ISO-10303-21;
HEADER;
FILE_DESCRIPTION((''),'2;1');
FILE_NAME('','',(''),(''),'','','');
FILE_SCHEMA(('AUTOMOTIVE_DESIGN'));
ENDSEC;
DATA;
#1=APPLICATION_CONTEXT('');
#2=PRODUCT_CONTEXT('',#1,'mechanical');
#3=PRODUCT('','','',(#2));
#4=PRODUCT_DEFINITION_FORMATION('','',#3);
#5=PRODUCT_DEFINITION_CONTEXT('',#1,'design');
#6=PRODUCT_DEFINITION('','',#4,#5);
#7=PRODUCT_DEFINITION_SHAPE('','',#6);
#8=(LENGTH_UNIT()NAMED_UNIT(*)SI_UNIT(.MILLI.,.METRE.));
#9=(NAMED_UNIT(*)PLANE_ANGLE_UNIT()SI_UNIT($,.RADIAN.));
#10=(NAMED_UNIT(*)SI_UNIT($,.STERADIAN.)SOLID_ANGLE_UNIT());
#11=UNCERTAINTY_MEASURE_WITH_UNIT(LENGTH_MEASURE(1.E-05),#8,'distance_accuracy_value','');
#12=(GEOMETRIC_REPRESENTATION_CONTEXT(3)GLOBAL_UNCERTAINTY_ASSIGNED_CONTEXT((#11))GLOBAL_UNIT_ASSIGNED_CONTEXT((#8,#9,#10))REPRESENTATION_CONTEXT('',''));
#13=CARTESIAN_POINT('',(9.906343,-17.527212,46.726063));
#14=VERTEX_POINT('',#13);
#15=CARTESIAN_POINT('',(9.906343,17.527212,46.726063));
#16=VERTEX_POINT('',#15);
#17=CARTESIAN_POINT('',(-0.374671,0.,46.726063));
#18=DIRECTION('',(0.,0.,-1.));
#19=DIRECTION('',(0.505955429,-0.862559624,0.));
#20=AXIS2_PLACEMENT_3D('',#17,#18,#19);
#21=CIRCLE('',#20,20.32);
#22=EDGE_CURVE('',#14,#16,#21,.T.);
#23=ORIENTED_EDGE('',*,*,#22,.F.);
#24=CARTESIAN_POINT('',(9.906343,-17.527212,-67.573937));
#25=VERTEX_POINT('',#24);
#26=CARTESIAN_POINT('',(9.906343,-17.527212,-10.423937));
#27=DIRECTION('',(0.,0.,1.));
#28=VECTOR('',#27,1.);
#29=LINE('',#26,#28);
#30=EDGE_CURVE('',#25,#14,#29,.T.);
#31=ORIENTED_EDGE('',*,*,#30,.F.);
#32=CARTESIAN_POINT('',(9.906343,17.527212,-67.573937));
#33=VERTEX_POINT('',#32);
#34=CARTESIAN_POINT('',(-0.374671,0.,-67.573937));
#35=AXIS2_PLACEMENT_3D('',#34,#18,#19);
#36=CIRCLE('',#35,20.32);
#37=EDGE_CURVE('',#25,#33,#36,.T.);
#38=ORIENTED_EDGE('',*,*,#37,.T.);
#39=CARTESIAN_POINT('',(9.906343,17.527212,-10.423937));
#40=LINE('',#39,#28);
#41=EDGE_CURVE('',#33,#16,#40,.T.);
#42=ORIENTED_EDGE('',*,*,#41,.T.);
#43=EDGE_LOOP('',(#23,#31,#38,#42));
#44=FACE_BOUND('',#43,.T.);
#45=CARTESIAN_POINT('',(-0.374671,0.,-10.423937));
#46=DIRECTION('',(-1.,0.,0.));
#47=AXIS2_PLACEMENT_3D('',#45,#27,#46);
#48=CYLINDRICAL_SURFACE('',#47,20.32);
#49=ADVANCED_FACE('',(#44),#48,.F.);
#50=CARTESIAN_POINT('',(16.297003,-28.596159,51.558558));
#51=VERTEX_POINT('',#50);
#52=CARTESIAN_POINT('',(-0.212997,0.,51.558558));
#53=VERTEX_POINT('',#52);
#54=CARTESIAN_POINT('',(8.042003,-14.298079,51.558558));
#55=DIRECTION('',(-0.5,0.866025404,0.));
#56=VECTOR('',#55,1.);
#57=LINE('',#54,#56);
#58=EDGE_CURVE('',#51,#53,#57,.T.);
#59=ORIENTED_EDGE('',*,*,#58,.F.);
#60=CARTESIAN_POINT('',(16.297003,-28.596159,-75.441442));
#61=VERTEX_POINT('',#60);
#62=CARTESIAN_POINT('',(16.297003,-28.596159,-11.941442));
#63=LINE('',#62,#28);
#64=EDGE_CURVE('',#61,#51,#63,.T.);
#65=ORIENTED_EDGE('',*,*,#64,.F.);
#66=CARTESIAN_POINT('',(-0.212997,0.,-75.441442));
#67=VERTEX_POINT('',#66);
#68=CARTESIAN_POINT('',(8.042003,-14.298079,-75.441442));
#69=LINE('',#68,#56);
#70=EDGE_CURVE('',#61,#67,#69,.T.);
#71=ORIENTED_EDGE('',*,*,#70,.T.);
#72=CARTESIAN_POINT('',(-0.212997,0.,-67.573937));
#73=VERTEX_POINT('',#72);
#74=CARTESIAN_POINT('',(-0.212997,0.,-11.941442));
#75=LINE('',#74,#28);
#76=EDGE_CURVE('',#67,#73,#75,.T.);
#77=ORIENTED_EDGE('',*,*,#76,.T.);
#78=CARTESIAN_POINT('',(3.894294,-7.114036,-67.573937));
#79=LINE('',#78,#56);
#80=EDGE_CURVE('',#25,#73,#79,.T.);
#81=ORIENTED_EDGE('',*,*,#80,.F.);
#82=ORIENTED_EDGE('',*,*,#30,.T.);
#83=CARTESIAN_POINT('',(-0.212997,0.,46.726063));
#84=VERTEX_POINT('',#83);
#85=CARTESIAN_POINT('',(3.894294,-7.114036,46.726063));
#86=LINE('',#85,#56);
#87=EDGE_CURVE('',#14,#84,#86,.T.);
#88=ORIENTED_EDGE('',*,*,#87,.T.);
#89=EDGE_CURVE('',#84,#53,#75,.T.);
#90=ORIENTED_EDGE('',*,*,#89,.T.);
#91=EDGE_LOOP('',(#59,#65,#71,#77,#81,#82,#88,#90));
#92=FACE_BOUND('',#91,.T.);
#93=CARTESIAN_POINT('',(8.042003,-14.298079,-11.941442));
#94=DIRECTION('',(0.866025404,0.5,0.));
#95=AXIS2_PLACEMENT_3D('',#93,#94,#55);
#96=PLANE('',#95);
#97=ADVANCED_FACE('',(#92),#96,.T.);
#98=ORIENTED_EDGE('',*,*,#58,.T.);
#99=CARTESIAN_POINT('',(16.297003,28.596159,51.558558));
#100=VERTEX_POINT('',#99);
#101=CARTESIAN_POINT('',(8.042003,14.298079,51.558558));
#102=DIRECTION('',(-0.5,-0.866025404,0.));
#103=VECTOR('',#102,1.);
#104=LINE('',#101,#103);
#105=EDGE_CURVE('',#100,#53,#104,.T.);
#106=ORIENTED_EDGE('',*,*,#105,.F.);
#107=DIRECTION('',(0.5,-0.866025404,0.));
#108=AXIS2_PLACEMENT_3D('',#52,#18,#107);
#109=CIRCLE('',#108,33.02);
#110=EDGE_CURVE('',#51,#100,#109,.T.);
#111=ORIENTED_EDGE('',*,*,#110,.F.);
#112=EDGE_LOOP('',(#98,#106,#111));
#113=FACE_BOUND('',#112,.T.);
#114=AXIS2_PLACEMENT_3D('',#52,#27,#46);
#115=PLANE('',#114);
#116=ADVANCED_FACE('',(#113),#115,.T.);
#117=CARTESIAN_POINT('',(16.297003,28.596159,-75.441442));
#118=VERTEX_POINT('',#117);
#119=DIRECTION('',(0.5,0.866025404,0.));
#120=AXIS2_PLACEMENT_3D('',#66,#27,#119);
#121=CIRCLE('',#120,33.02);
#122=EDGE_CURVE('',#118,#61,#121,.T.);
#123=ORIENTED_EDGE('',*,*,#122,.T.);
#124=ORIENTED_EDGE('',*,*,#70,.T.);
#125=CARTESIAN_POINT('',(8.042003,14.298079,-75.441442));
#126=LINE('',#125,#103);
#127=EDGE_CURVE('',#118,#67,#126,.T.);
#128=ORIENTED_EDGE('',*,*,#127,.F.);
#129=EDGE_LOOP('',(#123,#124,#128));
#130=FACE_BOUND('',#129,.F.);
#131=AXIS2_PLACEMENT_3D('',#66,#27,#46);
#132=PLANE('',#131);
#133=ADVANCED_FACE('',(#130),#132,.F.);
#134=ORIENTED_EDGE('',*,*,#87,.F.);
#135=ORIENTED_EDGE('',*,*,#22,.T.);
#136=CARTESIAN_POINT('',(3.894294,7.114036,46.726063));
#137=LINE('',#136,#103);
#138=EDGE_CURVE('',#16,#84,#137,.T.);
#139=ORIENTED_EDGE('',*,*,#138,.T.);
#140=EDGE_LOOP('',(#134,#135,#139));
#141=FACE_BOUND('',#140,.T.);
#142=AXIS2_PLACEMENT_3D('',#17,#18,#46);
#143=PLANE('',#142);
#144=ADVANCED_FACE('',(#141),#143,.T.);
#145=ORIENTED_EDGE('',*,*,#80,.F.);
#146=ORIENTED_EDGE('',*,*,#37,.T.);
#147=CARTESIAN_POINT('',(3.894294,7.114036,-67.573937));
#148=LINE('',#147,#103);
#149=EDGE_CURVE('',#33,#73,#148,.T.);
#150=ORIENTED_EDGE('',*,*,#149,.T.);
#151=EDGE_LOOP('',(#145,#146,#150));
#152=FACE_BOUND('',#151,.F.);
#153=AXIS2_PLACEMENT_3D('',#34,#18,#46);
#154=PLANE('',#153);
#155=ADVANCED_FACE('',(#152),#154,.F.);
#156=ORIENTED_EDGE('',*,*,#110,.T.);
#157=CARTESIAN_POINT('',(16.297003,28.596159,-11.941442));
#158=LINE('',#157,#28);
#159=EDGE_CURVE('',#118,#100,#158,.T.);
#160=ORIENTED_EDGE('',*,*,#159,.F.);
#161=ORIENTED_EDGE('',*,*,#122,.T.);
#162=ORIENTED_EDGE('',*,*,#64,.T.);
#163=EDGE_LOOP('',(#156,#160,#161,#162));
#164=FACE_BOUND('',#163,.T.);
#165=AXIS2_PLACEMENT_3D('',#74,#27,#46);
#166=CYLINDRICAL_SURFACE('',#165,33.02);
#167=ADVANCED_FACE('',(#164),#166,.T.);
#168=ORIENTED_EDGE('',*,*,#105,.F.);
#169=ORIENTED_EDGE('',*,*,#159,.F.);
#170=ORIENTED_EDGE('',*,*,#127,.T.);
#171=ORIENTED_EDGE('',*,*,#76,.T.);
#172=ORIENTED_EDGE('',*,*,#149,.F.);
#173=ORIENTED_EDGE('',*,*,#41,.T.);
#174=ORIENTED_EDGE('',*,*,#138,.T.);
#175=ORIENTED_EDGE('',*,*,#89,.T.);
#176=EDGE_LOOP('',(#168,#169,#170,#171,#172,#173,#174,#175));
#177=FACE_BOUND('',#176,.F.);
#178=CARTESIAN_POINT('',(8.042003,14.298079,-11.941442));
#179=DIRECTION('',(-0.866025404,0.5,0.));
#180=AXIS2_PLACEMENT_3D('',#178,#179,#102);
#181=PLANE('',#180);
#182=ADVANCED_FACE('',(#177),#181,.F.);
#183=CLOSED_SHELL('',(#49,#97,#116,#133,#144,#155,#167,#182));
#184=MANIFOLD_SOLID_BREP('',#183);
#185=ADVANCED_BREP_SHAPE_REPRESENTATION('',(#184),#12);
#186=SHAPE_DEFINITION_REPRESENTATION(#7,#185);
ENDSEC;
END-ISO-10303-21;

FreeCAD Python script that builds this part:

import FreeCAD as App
import Part
import Sketcher
Q = App.Units.Quantity


def add_polygon(sketch, points):
    """Adds a closed chain of lines whose ends are joined by coincident constraints."""
    first, n = sketch.GeometryCount, len(points)
    for a, b in zip(points, points[1:] + points[:1]):
        sketch.addGeometry(Part.LineSegment(App.Vector(*a, 0), App.Vector(*b, 0)), False)
    for i in range(n):
        sketch.addConstraint(Sketcher.Constraint("Coincident", first + i, 2, first + (i + 1) % n, 1))

doc = App.newDocument("Part")
body = doc.addObject("PartDesign::Body", "Body")

# Sketch on XZ plane
sketch1 = doc.addObject("Sketcher::SketchObject", "Sketch")
body.addObject(sketch1)
sketch1.AttachmentSupport = (doc.XZ_Plane, [""])
sketch1.MapMode = "FlatFace"
add_polygon(sketch1, [(-33, 52), (-33, -75), (0, -75), (0, 52)])  # lines 0-3
sketch1.addGeometry(Part.LineSegment(App.Vector(0, 52, 0), App.Vector(0, -75, 0)), True)  # axis
sketch1.addConstraint(Sketcher.Constraint("Vertical", 0))
sketch1.addConstraint(Sketcher.Constraint("Horizontal", 1))
sketch1.addConstraint(Sketcher.Constraint("Vertical", 2))
sketch1.addConstraint(Sketcher.Constraint("Horizontal", 3))
sketch1.addConstraint(Sketcher.Constraint("Vertical", 4))
sketch1.addConstraint(Sketcher.Constraint("Coincident", 4, 1, 2, 2))
sketch1.addConstraint(Sketcher.Constraint("Horizontal", 0, 2, 4, 2))
sketch1.addConstraint(Sketcher.Constraint("DistanceY", 0, 2, 0, 1, Q("5 in")))
sketch1.addConstraint(Sketcher.Constraint("DistanceX", 1, 1, 1, 2, Q("1.3 in")))
sketch1.addConstraint(Sketcher.Constraint("DistanceY", 0, 2, -1, 1, 75.441442))
sketch1.addConstraint(Sketcher.Constraint("DistanceX", 0, 2, -1, 1, 33.232997))
revolution = doc.addObject("PartDesign::Revolution", "Revolution")
body.addObject(revolution)
revolution.Profile = sketch1
revolution.ReferenceAxis = (sketch1, ["Axis0"])
revolution.Angle = 120

# Sketch on XZ plane
sketch2 = doc.addObject("Sketcher::SketchObject", "Sketch001")
body.addObject(sketch2)
sketch2.AttachmentSupport = (doc.XZ_Plane, [""])
sketch2.MapMode = "FlatFace"
add_polygon(sketch2, [(-33, 52), (-33, -75), (0, -75), (0, 52)])  # lines 0-3
sketch2.addGeometry(Part.LineSegment(App.Vector(0, -75, 0), App.Vector(0, 52, 0)), True)  # axis
sketch2.addConstraint(Sketcher.Constraint("Vertical", 0))
sketch2.addConstraint(Sketcher.Constraint("Horizontal", 1))
sketch2.addConstraint(Sketcher.Constraint("Vertical", 2))
sketch2.addConstraint(Sketcher.Constraint("Horizontal", 3))
sketch2.addConstraint(Sketcher.Constraint("Vertical", 4))
sketch2.addConstraint(Sketcher.Constraint("Coincident", 4, 1, 1, 2))
sketch2.addConstraint(Sketcher.Constraint("Horizontal", 3, 2, 4, 2))
sketch2.addConstraint(Sketcher.Constraint("DistanceY", 0, 2, 0, 1, Q("5 in")))
sketch2.addConstraint(Sketcher.Constraint("DistanceX", 1, 1, 1, 2, Q("1.3 in")))
sketch2.addConstraint(Sketcher.Constraint("DistanceY", 0, 2, -1, 1, 75.441442))
sketch2.addConstraint(Sketcher.Constraint("DistanceX", 0, 2, -1, 1, 33.232997))
revolution2 = doc.addObject("PartDesign::Revolution", "Revolution001")
body.addObject(revolution2)
revolution2.Profile = sketch2
revolution2.ReferenceAxis = (sketch2, ["Axis0"])
revolution2.Angle = 120

# Sketch on XZ plane
sketch3 = doc.addObject("Sketcher::SketchObject", "Sketch002")
body.addObject(sketch3)
sketch3.AttachmentSupport = (doc.XZ_Plane, [""])
sketch3.MapMode = "FlatFace"
add_polygon(sketch3, [(-21, 47), (-21, -68), (0, -68), (0, 47)])  # lines 0-3
sketch3.addGeometry(Part.LineSegment(App.Vector(0, 47, 0), App.Vector(0, -68, 0)), True)  # axis
sketch3.addConstraint(Sketcher.Constraint("Vertical", 0))
sketch3.addConstraint(Sketcher.Constraint("Horizontal", 1))
sketch3.addConstraint(Sketcher.Constraint("Vertical", 2))
sketch3.addConstraint(Sketcher.Constraint("Horizontal", 3))
sketch3.addConstraint(Sketcher.Constraint("Vertical", 4))
sketch3.addConstraint(Sketcher.Constraint("Coincident", 4, 1, 2, 2))
sketch3.addConstraint(Sketcher.Constraint("Horizontal", 0, 2, 4, 2))
sketch3.addConstraint(Sketcher.Constraint("DistanceX", 1, 1, 1, 2, Q("0.8 in")))
sketch3.addConstraint(Sketcher.Constraint("DistanceY", 0, 2, 0, 1, Q("4.5 in")))
sketch3.addConstraint(Sketcher.Constraint("DistanceX", 0, 2, -1, 1, 20.694671))
sketch3.addConstraint(Sketcher.Constraint("DistanceY", 0, 2, -1, 1, 67.573937))
groove = doc.addObject("PartDesign::Groove", "Groove")
body.addObject(groove)
groove.Profile = sketch3
groove.ReferenceAxis = (sketch3, ["Axis0"])
groove.Angle = 360

doc.recompute()
